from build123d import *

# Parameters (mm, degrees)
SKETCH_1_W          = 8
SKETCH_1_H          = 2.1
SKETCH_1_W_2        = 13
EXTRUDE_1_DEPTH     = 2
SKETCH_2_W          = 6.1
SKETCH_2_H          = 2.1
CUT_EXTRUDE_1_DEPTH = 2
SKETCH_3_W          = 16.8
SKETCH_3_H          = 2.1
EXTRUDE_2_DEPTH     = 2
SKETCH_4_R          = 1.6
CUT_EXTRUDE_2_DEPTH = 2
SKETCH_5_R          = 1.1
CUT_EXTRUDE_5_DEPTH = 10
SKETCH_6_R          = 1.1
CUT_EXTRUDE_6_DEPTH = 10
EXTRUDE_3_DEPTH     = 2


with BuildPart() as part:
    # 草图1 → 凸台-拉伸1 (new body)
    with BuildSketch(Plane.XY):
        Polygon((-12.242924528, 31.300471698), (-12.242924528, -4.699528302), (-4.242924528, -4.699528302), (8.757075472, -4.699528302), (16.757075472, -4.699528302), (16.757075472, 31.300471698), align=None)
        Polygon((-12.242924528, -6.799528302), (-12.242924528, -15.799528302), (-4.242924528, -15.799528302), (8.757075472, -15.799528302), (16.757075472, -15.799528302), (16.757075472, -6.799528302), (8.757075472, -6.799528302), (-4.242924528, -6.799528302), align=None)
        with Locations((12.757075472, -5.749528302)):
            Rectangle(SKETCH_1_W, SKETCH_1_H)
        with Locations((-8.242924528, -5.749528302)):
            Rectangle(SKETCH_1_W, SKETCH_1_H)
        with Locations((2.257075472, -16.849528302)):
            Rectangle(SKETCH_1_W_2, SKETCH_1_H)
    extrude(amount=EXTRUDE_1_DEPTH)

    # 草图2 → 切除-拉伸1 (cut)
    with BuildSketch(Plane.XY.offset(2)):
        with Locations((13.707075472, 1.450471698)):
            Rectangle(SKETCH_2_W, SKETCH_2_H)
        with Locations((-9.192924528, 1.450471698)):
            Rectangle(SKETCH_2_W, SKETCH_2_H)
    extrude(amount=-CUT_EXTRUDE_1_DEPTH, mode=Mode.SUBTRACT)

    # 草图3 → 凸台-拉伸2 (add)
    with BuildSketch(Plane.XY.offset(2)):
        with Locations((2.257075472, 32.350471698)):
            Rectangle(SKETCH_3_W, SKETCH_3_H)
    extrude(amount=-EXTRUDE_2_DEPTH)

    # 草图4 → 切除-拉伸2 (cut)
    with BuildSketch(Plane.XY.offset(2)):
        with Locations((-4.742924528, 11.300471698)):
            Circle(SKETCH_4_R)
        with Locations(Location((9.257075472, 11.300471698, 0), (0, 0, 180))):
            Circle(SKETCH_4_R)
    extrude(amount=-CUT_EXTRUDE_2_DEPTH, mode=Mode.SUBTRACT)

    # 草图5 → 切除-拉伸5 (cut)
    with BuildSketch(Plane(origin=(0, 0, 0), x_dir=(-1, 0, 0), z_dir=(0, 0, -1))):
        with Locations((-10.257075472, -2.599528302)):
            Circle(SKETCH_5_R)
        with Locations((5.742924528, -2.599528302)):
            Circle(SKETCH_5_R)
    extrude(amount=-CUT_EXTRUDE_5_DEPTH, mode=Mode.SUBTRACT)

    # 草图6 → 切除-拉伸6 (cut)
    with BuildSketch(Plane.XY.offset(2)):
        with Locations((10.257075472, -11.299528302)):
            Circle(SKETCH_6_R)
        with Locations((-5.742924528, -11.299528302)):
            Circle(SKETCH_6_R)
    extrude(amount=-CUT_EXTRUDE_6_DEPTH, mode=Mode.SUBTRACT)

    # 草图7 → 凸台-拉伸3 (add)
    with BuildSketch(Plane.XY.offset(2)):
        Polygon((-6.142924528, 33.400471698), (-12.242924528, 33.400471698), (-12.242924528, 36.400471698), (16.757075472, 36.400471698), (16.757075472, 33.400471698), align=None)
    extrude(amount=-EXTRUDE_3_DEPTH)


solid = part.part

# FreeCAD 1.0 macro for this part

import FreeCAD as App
import Part
import Sketcher
from FreeCAD import Vector
Q = App.Units.Quantity

doc = App.newDocument("Part")
body = doc.addObject("PartDesign::Body", "Body")

sketch1 = body.newObject("Sketcher::SketchObject", "Sketch")
sketch1.AttachmentSupport = (doc.getObject("XY_Plane"), [""])
sketch1.MapMode = "FlatFace"
sketch1.addGeometry([
    Part.LineSegment(Vector(-12.2, 31.3, 0), Vector(-12.2, -15.8, 0)),
    Part.LineSegment(Vector(-12.2, -15.8, 0), Vector(-4.2, -15.8, 0)),
    Part.LineSegment(Vector(-4.2, -15.8, 0), Vector(-4.2, -17.9, 0)),
    Part.LineSegment(Vector(-4.2, -17.9, 0), Vector(8.8, -17.9, 0)),
    Part.LineSegment(Vector(8.8, -17.9, 0), Vector(8.8, -15.8, 0)),
    Part.LineSegment(Vector(8.8, -15.8, 0), Vector(16.8, -15.8, 0)),
    Part.LineSegment(Vector(16.8, -15.8, 0), Vector(16.8, 31.3, 0)),
    Part.LineSegment(Vector(16.8, 31.3, 0), Vector(-12.2, 31.3, 0)),
    Part.LineSegment(Vector(-4.2, -4.7, 0), Vector(8.8, -4.7, 0)),
    Part.LineSegment(Vector(8.8, -4.7, 0), Vector(8.8, -6.8, 0)),
    Part.LineSegment(Vector(8.8, -6.8, 0), Vector(-4.2, -6.8, 0)),
    Part.LineSegment(Vector(-4.2, -6.8, 0), Vector(-4.2, -4.7, 0)),
], False)
sketch1.addConstraint([
    Sketcher.Constraint("Coincident", 0, 2, 1, 1),
    Sketcher.Constraint("Coincident", 1, 2, 2, 1),
    Sketcher.Constraint("Coincident", 2, 2, 3, 1),
    Sketcher.Constraint("Coincident", 3, 2, 4, 1),
    Sketcher.Constraint("Coincident", 4, 2, 5, 1),
    Sketcher.Constraint("Coincident", 5, 2, 6, 1),
    Sketcher.Constraint("Coincident", 6, 2, 7, 1),
    Sketcher.Constraint("Coincident", 7, 2, 0, 1),
    Sketcher.Constraint("Coincident", 8, 2, 9, 1),
    Sketcher.Constraint("Coincident", 9, 2, 10, 1),
    Sketcher.Constraint("Coincident", 10, 2, 11, 1),
    Sketcher.Constraint("Coincident", 11, 2, 8, 1),
    Sketcher.Constraint("Vertical", 0),
    Sketcher.Constraint("Horizontal", 1),
    Sketcher.Constraint("Vertical", 2),
    Sketcher.Constraint("Horizontal", 3),
    Sketcher.Constraint("Vertical", 4),
    Sketcher.Constraint("Horizontal", 5),
    Sketcher.Constraint("Vertical", 6),
    Sketcher.Constraint("Horizontal", 7),
    Sketcher.Constraint("Horizontal", 8),
    Sketcher.Constraint("Vertical", 9),
    Sketcher.Constraint("Horizontal", 10),
    Sketcher.Constraint("Vertical", 11),
    Sketcher.Constraint("Horizontal", 1, 2, 4, 2),
    Sketcher.Constraint("Vertical", 4, 2, 8, 2),
    Sketcher.Constraint("Vertical", 2, 2, 10, 2),
    Sketcher.Constraint("Equal", 1, 5),
    Sketcher.Constraint("Equal", 4, 9),
    Sketcher.Constraint("DistanceX", 1, 1, 1, 2, Q("8 mm")),
    Sketcher.Constraint("DistanceX", 3, 1, 3, 2, Q("13 mm")),
    Sketcher.Constraint("DistanceY", 0, 2, 0, 1, Q("47.1 mm")),
    Sketcher.Constraint("DistanceY", 2, 2, 2, 1, Q("2.1 mm")),
    Sketcher.Constraint("DistanceY", 4, 2, 9, 2, Q("9 mm")),
    Sketcher.Constraint("DistanceY", 0, 2, -1, 1, Q("15.799528 mm")),
    Sketcher.Constraint("DistanceX", 0, 2, -1, 1, Q("12.242925 mm")),
])
pad1 = body.newObject("PartDesign::Pad", "Pad")
pad1.Profile = sketch1
pad1.Length = 2

sketch2 = body.newObject("Sketcher::SketchObject", "Sketch001")
sketch2.AttachmentSupport = (doc.getObject("XY_Plane"), [""])
sketch2.MapMode = "FlatFace"
sketch2.AttachmentOffset = App.Placement(Vector(0, 0, 2), App.Rotation())
sketch2.addGeometry([
    Part.LineSegment(Vector(10.7, 2.5, 0), Vector(10.7, 0.4, 0)),
    Part.LineSegment(Vector(10.7, 0.4, 0), Vector(16.8, 0.4, 0)),
    Part.LineSegment(Vector(16.8, 0.4, 0), Vector(16.8, 2.5, 0)),
    Part.LineSegment(Vector(16.8, 2.5, 0), Vector(10.7, 2.5, 0)),
    Part.LineSegment(Vector(-12.2, 2.5, 0), Vector(-12.2, 0.4, 0)),
    Part.LineSegment(Vector(-12.2, 0.4, 0), Vector(-6.1, 0.4, 0)),
    Part.LineSegment(Vector(-6.1, 0.4, 0), Vector(-6.1, 2.5, 0)),
    Part.LineSegment(Vector(-6.1, 2.5, 0), Vector(-12.2, 2.5, 0)),
], False)
sketch2.addConstraint([
    Sketcher.Constraint("Coincident", 0, 2, 1, 1),
    Sketcher.Constraint("Coincident", 1, 2, 2, 1),
    Sketcher.Constraint("Coincident", 2, 2, 3, 1),
    Sketcher.Constraint("Coincident", 3, 2, 0, 1),
    Sketcher.Constraint("Coincident", 4, 2, 5, 1),
    Sketcher.Constraint("Coincident", 5, 2, 6, 1),
    Sketcher.Constraint("Coincident", 6, 2, 7, 1),
    Sketcher.Constraint("Coincident", 7, 2, 4, 1),
    Sketcher.Constraint("Vertical", 0),
    Sketcher.Constraint("Horizontal", 1),
    Sketcher.Constraint("Vertical", 2),
    Sketcher.Constraint("Horizontal", 3),
    Sketcher.Constraint("Vertical", 4),
    Sketcher.Constraint("Horizontal", 5),
    Sketcher.Constraint("Vertical", 6),
    Sketcher.Constraint("Horizontal", 7),
    Sketcher.Constraint("Horizontal", 1, 2, 4, 2),
    Sketcher.Constraint("Horizontal", 3, 2, 6, 2),
    Sketcher.Constraint("Equal", 3, 5),
    Sketcher.Constraint("DistanceX", 1, 1, 1, 2, Q("6.1 mm")),
    Sketcher.Constraint("DistanceY", 0, 2, 0, 1, Q("2.1 mm")),
    Sketcher.Constraint("DistanceX", 4, 2, 1, 2, Q("29 mm")),
    Sketcher.Constraint("DistanceY", -1, 1, 0, 2, Q("0.400472 mm")),
    Sketcher.Constraint("DistanceX", -1, 1, 0, 2, Q("10.657075 mm")),
])
pocket1 = body.newObject("PartDesign::Pocket", "Pocket")
pocket1.Profile = sketch2
pocket1.Length = 2

sketch3 = body.newObject("Sketcher::SketchObject", "Sketch002")
sketch3.AttachmentSupport = (doc.getObject("XY_Plane"), [""])
sketch3.MapMode = "FlatFace"
sketch3.AttachmentOffset = App.Placement(Vector(0, 0, 2), App.Rotation())
sketch3.addGeometry([
    Part.LineSegment(Vector(-6.1, 33.4, 0), Vector(-6.1, 31.3, 0)),
    Part.LineSegment(Vector(-6.1, 31.3, 0), Vector(10.7, 31.3, 0)),
    Part.LineSegment(Vector(10.7, 31.3, 0), Vector(10.7, 33.4, 0)),
    Part.LineSegment(Vector(10.7, 33.4, 0), Vector(-6.1, 33.4, 0)),
], False)
sketch3.addConstraint([
    Sketcher.Constraint("Coincident", 0, 2, 1, 1),
    Sketcher.Constraint("Coincident", 1, 2, 2, 1),
    Sketcher.Constraint("Coincident", 2, 2, 3, 1),
    Sketcher.Constraint("Coincident", 3, 2, 0, 1),
    Sketcher.Constraint("Vertical", 0),
    Sketcher.Constraint("Horizontal", 1),
    Sketcher.Constraint("Vertical", 2),
    Sketcher.Constraint("Horizontal", 3),
    Sketcher.Constraint("DistanceX", 1, 1, 1, 2, Q("16.8 mm")),
    Sketcher.Constraint("DistanceY", 0, 2, 0, 1, Q("2.1 mm")),
    Sketcher.Constraint("DistanceY", -1, 1, 0, 2, Q("31.300472 mm")),
    Sketcher.Constraint("DistanceX", 0, 2, -1, 1, Q("6.142925 mm")),
])
pad2 = body.newObject("PartDesign::Pad", "Pad001")
pad2.Profile = sketch3
pad2.Length = 2
pad2.Reversed = True

sketch4 = body.newObject("Sketcher::SketchObject", "Sketch003")
sketch4.AttachmentSupport = (doc.getObject("XY_Plane"), [""])
sketch4.MapMode = "FlatFace"
sketch4.AttachmentOffset = App.Placement(Vector(0, 0, 2), App.Rotation())
sketch4.addGeometry([
    Part.Circle(Vector(-4.7, 11.3, 0), Vector(0, 0, 1), 1.6),
    Part.Circle(Vector(9.3, 11.3, 0), Vector(0, 0, 1), 1.6),
], False)
sketch4.addConstraint([
    Sketcher.Constraint("Equal", 0, 1),
    Sketcher.Constraint("Horizontal", 0, 3, 1, 3),
    Sketcher.Constraint("Diameter", 0, Q("3.2 mm")),
    Sketcher.Constraint("DistanceX", 0, 3, 1, 3, Q("14 mm")),
    Sketcher.Constraint("DistanceY", -1, 1, 0, 3, Q("11.300472 mm")),
    Sketcher.Constraint("DistanceX", 0, 3, -1, 1, Q("4.742925 mm")),
])
pocket2 = body.newObject("PartDesign::Pocket", "Pocket001")
pocket2.Profile = sketch4
pocket2.Length = 2

sketch5 = body.newObject("Sketcher::SketchObject", "Sketch004")
sketch5.AttachmentSupport = (doc.getObject("XY_Plane"), [""])
sketch5.MapMode = "FlatFace"
sketch5.addGeometry([
    Part.Circle(Vector(10.3, -2.6, 0), Vector(0, 0, 1), 1.1),
    Part.Circle(Vector(-5.7, -2.6, 0), Vector(0, 0, 1), 1.1),
], False)
sketch5.addConstraint([
    Sketcher.Constraint("Equal", 0, 1),
    Sketcher.Constraint("Horizontal", 0, 3, 1, 3),
    Sketcher.Constraint("Diameter", 0, Q("2.2 mm")),
    Sketcher.Constraint("DistanceX", 1, 3, 0, 3, Q("16 mm")),
    Sketcher.Constraint("DistanceY", 0, 3, -1, 1, Q("2.599528 mm")),
    Sketcher.Constraint("DistanceX", -1, 1, 0, 3, Q("10.257075 mm")),
])
pocket3 = body.newObject("PartDesign::Pocket", "Pocket002")
pocket3.Profile = sketch5
pocket3.Length = 10
pocket3.Reversed = True

sketch6 = body.newObject("Sketcher::SketchObject", "Sketch005")
sketch6.AttachmentSupport = (doc.getObject("XY_Plane"), [""])
sketch6.MapMode = "FlatFace"
sketch6.AttachmentOffset = App.Placement(Vector(0, 0, 2), App.Rotation())
sketch6.addGeometry([
    Part.Circle(Vector(10.3, -11.3, 0), Vector(0, 0, 1), 1.1),
    Part.Circle(Vector(-5.7, -11.3, 0), Vector(0, 0, 1), 1.1),
], False)
sketch6.addConstraint([
    Sketcher.Constraint("Equal", 0, 1),
    Sketcher.Constraint("Horizontal", 0, 3, 1, 3),
    Sketcher.Constraint("Diameter", 0, Q("2.2 mm")),
    Sketcher.Constraint("DistanceX", 1, 3, 0, 3, Q("16 mm")),
    Sketcher.Constraint("DistanceY", 0, 3, -1, 1, Q("11.299528 mm")),
    Sketcher.Constraint("DistanceX", -1, 1, 0, 3, Q("10.257075 mm")),
])
pocket4 = body.newObject("PartDesign::Pocket", "Pocket003")
pocket4.Profile = sketch6
pocket4.Length = 10

sketch7 = body.newObject("Sketcher::SketchObject", "Sketch006")
sketch7.AttachmentSupport = (doc.getObject("XY_Plane"), [""])
sketch7.MapMode = "FlatFace"
sketch7.AttachmentOffset = App.Placement(Vector(0, 0, 2), App.Rotation())
sketch7.addGeometry([
    Part.LineSegment(Vector(-12.2, 33.4, 0), Vector(16.8, 33.4, 0)),
    Part.LineSegment(Vector(16.8, 33.4, 0), Vector(16.8, 36.4, 0)),
    Part.LineSegment(Vector(16.8, 36.4, 0), Vector(-12.2, 36.4, 0)),
    Part.LineSegment(Vector(-12.2, 36.4, 0), Vector(-12.2, 33.4, 0)),
], False)
sketch7.addConstraint([
    Sketcher.Constraint("Coincident", 0, 2, 1, 1),
    Sketcher.Constraint("Coincident", 1, 2, 2, 1),
    Sketcher.Constraint("Coincident", 2, 2, 3, 1),
    Sketcher.Constraint("Coincident", 3, 2, 0, 1),
    Sketcher.Constraint("Horizontal", 0),
    Sketcher.Constraint("Vertical", 1),
    Sketcher.Constraint("Horizontal", 2),
    Sketcher.Constraint("Vertical", 3),
    Sketcher.Constraint("DistanceX", 0, 1, 0, 2, Q("29 mm")),
    Sketcher.Constraint("DistanceY", 1, 1, 1, 2, Q("3 mm")),
    Sketcher.Constraint("DistanceY", -1, 1, 0, 2, Q("33.400472 mm")),
    Sketcher.Constraint("DistanceX", -1, 1, 0, 2, Q("16.757075 mm")),
])
pad3 = body.newObject("PartDesign::Pad", "Pad002")
pad3.Profile = sketch7
pad3.Length = 2
pad3.Reversed = True

doc.recompute()
